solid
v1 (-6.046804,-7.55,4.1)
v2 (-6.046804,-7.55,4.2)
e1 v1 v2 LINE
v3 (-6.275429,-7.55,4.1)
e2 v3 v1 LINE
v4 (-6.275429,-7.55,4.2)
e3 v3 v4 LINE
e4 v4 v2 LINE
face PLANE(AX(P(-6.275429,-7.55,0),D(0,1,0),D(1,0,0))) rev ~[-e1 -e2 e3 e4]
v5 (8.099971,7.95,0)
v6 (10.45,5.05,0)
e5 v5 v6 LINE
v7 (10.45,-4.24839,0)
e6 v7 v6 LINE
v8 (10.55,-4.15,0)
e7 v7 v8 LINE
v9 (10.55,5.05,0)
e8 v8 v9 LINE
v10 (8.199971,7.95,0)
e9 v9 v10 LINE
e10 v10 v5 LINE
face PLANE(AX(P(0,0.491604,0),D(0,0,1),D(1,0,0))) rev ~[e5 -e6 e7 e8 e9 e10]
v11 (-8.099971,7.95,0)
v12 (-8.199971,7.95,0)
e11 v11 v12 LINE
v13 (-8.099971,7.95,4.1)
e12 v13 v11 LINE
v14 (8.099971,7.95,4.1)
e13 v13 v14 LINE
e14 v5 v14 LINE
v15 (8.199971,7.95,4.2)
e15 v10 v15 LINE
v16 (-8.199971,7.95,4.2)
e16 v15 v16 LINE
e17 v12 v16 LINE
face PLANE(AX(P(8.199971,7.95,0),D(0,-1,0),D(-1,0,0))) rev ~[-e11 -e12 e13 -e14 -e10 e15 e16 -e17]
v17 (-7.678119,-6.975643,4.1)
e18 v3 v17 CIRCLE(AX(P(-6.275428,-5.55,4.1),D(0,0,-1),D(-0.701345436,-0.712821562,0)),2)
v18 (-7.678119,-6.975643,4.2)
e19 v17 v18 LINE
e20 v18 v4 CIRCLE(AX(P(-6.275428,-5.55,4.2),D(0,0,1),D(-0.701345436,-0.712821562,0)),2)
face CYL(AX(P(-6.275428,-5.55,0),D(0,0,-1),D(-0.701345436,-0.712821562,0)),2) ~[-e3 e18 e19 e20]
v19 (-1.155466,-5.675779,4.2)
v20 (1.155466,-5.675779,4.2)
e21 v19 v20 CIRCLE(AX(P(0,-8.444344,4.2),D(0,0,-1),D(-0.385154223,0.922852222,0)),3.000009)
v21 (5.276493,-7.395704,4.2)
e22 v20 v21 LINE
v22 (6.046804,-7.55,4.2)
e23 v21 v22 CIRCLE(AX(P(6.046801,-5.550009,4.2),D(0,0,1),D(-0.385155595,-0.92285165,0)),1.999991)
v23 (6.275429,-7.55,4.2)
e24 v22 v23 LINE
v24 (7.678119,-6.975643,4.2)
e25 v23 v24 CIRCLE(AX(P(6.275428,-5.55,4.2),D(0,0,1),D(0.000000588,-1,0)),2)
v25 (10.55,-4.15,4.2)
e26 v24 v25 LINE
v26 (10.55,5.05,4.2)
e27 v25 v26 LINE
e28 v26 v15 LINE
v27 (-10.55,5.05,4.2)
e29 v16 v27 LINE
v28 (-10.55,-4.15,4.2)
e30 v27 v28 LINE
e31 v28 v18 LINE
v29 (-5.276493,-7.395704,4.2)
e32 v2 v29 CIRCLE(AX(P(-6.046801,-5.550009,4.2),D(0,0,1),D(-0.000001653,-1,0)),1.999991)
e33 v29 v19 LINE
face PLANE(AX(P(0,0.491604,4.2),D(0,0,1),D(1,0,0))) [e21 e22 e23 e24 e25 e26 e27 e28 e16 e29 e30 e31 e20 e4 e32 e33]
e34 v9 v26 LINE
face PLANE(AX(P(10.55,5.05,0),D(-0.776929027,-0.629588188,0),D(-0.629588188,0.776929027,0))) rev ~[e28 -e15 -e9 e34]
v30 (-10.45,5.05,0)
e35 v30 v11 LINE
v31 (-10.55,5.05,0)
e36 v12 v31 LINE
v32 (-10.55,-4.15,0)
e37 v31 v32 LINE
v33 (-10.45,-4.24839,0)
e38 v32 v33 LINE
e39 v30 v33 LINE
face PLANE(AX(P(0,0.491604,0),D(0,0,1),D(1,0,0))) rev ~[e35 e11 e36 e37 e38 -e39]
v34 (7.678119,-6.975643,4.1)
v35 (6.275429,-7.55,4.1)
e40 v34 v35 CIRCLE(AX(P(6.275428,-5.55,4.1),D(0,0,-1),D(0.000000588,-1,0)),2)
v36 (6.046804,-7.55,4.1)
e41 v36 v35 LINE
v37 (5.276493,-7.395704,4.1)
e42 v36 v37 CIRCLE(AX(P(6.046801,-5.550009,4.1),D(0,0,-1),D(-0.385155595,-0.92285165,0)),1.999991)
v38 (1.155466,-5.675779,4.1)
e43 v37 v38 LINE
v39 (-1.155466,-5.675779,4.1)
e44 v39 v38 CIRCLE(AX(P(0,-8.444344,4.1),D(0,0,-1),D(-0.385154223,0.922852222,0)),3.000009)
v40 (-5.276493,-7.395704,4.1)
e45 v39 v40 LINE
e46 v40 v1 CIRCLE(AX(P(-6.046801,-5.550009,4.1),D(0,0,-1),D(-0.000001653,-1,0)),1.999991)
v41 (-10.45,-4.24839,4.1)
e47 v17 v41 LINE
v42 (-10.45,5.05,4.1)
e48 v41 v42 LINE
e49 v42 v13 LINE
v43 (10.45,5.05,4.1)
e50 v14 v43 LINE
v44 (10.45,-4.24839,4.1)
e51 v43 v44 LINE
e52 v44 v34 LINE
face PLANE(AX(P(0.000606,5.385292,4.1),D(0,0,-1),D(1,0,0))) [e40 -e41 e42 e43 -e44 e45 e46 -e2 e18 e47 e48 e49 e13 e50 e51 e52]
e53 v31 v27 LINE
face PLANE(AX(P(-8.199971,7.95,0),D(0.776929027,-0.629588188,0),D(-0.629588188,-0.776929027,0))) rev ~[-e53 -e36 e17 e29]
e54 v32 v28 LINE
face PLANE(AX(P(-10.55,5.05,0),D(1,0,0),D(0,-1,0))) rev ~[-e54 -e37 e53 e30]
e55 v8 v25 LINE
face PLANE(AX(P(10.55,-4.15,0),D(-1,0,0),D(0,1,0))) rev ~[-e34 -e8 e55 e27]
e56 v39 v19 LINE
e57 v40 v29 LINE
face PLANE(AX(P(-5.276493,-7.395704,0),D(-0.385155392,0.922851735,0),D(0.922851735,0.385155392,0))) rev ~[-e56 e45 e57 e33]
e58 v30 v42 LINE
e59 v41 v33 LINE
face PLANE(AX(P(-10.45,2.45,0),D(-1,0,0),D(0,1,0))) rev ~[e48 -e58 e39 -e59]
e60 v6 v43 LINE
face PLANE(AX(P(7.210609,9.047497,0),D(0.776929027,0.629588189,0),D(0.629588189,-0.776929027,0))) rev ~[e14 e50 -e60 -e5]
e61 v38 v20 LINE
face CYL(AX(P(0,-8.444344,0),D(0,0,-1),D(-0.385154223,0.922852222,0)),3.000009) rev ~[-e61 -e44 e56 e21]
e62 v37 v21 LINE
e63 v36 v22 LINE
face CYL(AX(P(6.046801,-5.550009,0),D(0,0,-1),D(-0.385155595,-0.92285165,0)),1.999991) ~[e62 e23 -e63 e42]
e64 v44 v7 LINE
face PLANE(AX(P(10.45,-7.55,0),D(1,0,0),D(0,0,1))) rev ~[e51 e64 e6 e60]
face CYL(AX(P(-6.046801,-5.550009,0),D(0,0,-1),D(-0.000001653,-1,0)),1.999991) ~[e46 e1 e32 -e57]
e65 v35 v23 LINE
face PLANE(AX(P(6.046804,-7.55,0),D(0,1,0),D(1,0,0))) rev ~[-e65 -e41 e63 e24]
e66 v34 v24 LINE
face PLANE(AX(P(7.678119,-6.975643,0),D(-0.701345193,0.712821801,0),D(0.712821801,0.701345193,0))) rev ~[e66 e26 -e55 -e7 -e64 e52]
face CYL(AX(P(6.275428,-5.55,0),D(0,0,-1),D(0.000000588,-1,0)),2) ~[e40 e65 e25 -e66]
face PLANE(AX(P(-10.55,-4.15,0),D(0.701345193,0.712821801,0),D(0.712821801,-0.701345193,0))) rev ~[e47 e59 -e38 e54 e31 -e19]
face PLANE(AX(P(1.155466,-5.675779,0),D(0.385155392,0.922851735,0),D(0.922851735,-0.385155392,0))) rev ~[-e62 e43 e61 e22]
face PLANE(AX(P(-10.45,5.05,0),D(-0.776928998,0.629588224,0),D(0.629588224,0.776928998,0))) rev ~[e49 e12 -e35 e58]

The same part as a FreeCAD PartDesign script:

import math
import FreeCAD as App
import Part
import Sketcher
Q = App.Units.Quantity


def add_polygon(sketch, points):
    """Adds a closed chain of lines whose ends are joined by coincident constraints."""
    first, n = sketch.GeometryCount, len(points)
    for a, b in zip(points, points[1:] + points[:1]):
        sketch.addGeometry(Part.LineSegment(App.Vector(*a, 0), App.Vector(*b, 0)), False)
    for i in range(n):
        sketch.addConstraint(Sketcher.Constraint("Coincident", first + i, 2, first + (i + 1) % n, 1))

doc = App.newDocument("Part")
body = doc.addObject("PartDesign::Body", "Body")

# Sketch on XY plane
sketch1 = body.newObject("Sketcher::SketchObject", "Sketch")
sketch1.AttachmentSupport = (doc.getObject("XY_Plane"), [""])
sketch1.MapMode = "FlatFace"
sketch1.addGeometry([
    Part.LineSegment(App.Vector(-8.2, 7.95, 0), App.Vector(-10.55, 5.05, 0)),  # 0
    Part.LineSegment(App.Vector(-10.55, 5.05, 0), App.Vector(-10.55, -4.15, 0)),  # 1
    Part.LineSegment(App.Vector(-10.55, -4.15, 0), App.Vector(-7.68, -6.98, 0)),  # 2
    Part.ArcOfCircle(Part.Circle(App.Vector(-6.28, -5.55, 0), App.Vector(0, 0, 1), 2), math.radians(-135), math.radians(-90)),  # 3
    Part.LineSegment(App.Vector(-6.28, -7.55, 0), App.Vector(-6.05, -7.55, 0)),  # 4
    Part.ArcOfCircle(Part.Circle(App.Vector(-6.05, -5.55, 0), App.Vector(0, 0, 1), 2), math.radians(-90), math.radians(-67)),  # 5
    Part.LineSegment(App.Vector(-5.28, -7.4, 0), App.Vector(-1.16, -5.68, 0)),  # 6
    Part.ArcOfCircle(Part.Circle(App.Vector(0, -8.44, 0), App.Vector(0, 0, 1), 3), math.radians(67), math.radians(113)),  # 7
    Part.LineSegment(App.Vector(1.16, -5.68, 0), App.Vector(5.28, -7.4, 0)),  # 8
    Part.ArcOfCircle(Part.Circle(App.Vector(6.05, -5.55, 0), App.Vector(0, 0, 1), 2), math.radians(-113), math.radians(-90)),  # 9
    Part.LineSegment(App.Vector(6.05, -7.55, 0), App.Vector(6.28, -7.55, 0)),  # 10
    Part.ArcOfCircle(Part.Circle(App.Vector(6.28, -5.55, 0), App.Vector(0, 0, 1), 2), math.radians(-90), math.radians(-45)),  # 11
    Part.LineSegment(App.Vector(7.68, -6.98, 0), App.Vector(10.55, -4.15, 0)),  # 12
    Part.LineSegment(App.Vector(10.55, -4.15, 0), App.Vector(10.55, 5.05, 0)),  # 13
    Part.LineSegment(App.Vector(10.55, 5.05, 0), App.Vector(8.2, 7.95, 0)),  # 14
    Part.LineSegment(App.Vector(8.2, 7.95, 0), App.Vector(-8.2, 7.95, 0)),  # 15
], False)
sketch1.addConstraint([
    Sketcher.Constraint("Coincident", 0, 2, 1, 1),
    Sketcher.Constraint("Coincident", 1, 2, 2, 1),
    Sketcher.Constraint("Tangent", 2, 2, 3, 1),
    Sketcher.Constraint("Tangent", 3, 2, 4, 1),
    Sketcher.Constraint("Tangent", 4, 2, 5, 1),
    Sketcher.Constraint("Tangent", 5, 2, 6, 1),
    Sketcher.Constraint("Tangent", 6, 2, 7, 2),
    Sketcher.Constraint("Tangent", 7, 1, 8, 1),
    Sketcher.Constraint("Tangent", 8, 2, 9, 1),
    Sketcher.Constraint("Tangent", 9, 2, 10, 1),
    Sketcher.Constraint("Tangent", 10, 2, 11, 1),
    Sketcher.Constraint("Tangent", 11, 2, 12, 1),
    Sketcher.Constraint("Coincident", 12, 2, 13, 1),
    Sketcher.Constraint("Coincident", 13, 2, 14, 1),
    Sketcher.Constraint("Coincident", 14, 2, 15, 1),
    Sketcher.Constraint("Coincident", 15, 2, 0, 1),
    Sketcher.Constraint("Vertical", 1),
    Sketcher.Constraint("Horizontal", 4),
    Sketcher.Constraint("Horizontal", 10),
    Sketcher.Constraint("Vertical", 13),
    Sketcher.Constraint("Horizontal", 15),
    Sketcher.Constraint("Equal", 5, 9),
    Sketcher.Constraint("Equal", 3, 11),
    Sketcher.Constraint("Symmetric", 5, 3, 9, 3, -2),
    Sketcher.Constraint("Symmetric", 2, 2, 11, 2, -2),
    Sketcher.Constraint("Symmetric", 0, 2, 13, 2, -2),
    Sketcher.Constraint("PointOnObject", 7, 3, -2),
    Sketcher.Constraint("Equal", 0, 14),
    Sketcher.Constraint("Radius", 3, Q("2 mm")),
    Sketcher.Constraint("DistanceY", 1, 2, 1, 1, Q("9.2 mm")),
    Sketcher.Constraint("DistanceY", 3, 3, 0, 2, Q("10.6 mm")),
    Sketcher.Constraint("DistanceY", 13, 2, 14, 2, Q("2.9 mm")),
    Sketcher.Constraint("DistanceY", 3, 3, -1, 1, Q("5.55 mm")),
    Sketcher.Constraint("DistanceX", 0, 2, -1, 1, Q("10.55 mm")),
    Sketcher.Constraint("Radius", 5, Q("1.999991 mm")),
    Sketcher.Constraint("Radius", 7, Q("3.000009 mm")),
    Sketcher.Constraint("DistanceX", 15, 2, 15, 1, Q("16.399942 mm")),
    Sketcher.Constraint("DistanceX", 5, 3, -1, 1, Q("6.046801 mm")),
    Sketcher.Constraint("DistanceY", 7, 3, 2, 2, Q("1.468701 mm")),
    Sketcher.Constraint("Distance", 2, Q("4.028891 mm")),
])
pad1 = body.newObject("PartDesign::Pad", "Pad")
pad1.Profile = sketch1
pad1.Length = 4.2

# Sketch on XZ plane
sketch2 = body.newObject("Sketcher::SketchObject", "Sketch001")
sketch2.AttachmentSupport = (doc.getObject("XZ_Plane"), [""])
sketch2.MapMode = "FlatFace"
sketch2.AttachmentOffset = App.Placement(App.Vector(0, 0, 7.55), App.Rotation())
add_polygon(sketch2, [(-10.4, 4.1), (-10.4, 0), (10.4, 0), (10.4, 4.1)])  # lines 0-3
sketch2.addConstraint([
    Sketcher.Constraint("Vertical", 0),
    Sketcher.Constraint("Horizontal", 1),
    Sketcher.Constraint("Vertical", 2),
    Sketcher.Constraint("Horizontal", 3),
    Sketcher.Constraint("Symmetric", 0, 2, 1, 2, -1, 1),
    Sketcher.Constraint("DistanceX", 1, 1, 1, 2, Q("20.9 mm")),
    Sketcher.Constraint("DistanceY", 0, 2, 0, 1, Q("4.1 mm")),
])
pocket1 = body.newObject("PartDesign::Pocket", "Pocket")
pocket1.Profile = sketch2
pocket1.Length = 10

# Sketch on XY plane
sketch3 = body.newObject("Sketcher::SketchObject", "Sketch002")
sketch3.AttachmentSupport = (doc.getObject("XY_Plane"), [""])
sketch3.MapMode = "FlatFace"
add_polygon(sketch3, [(10.4, 2.5), (-10.4, 2.5), (-10.4, 5), (-7.2, 9), (7.2, 9), (10.4, 5)])  # lines 0-5
sketch3.addConstraint([
    Sketcher.Constraint("Horizontal", 0),
    Sketcher.Constraint("Vertical", 1),
    Sketcher.Constraint("Vertical", 5),
    Sketcher.Constraint("Symmetric", 1, 2, 4, 2, -2),
    Sketcher.Constraint("DistanceX", 0, 2, 0, 1, Q("20.9 mm")),
    Sketcher.Constraint("DistanceY", 1, 1, 1, 2, Q("2.6 mm")),
    Sketcher.Constraint("DistanceY", -1, 1, 0, 2, Q("2.45 mm")),
    Sketcher.Constraint("Distance", 2, Q("5.133732 mm")),
    Sketcher.Constraint("DistanceX", -1, 1, 3, 2, Q("7.210609 mm")),
    Sketcher.Constraint("DistanceX", 2, 2, 3, 2, Q("14.428472 mm")),
    Sketcher.Constraint("Distance", 4, Q("5.145254 mm")),
])
pocket2 = body.newObject("PartDesign::Pocket", "Pocket001")
pocket2.Profile = sketch3
pocket2.Length = 4.1
pocket2.Reversed = True

doc.recompute()
